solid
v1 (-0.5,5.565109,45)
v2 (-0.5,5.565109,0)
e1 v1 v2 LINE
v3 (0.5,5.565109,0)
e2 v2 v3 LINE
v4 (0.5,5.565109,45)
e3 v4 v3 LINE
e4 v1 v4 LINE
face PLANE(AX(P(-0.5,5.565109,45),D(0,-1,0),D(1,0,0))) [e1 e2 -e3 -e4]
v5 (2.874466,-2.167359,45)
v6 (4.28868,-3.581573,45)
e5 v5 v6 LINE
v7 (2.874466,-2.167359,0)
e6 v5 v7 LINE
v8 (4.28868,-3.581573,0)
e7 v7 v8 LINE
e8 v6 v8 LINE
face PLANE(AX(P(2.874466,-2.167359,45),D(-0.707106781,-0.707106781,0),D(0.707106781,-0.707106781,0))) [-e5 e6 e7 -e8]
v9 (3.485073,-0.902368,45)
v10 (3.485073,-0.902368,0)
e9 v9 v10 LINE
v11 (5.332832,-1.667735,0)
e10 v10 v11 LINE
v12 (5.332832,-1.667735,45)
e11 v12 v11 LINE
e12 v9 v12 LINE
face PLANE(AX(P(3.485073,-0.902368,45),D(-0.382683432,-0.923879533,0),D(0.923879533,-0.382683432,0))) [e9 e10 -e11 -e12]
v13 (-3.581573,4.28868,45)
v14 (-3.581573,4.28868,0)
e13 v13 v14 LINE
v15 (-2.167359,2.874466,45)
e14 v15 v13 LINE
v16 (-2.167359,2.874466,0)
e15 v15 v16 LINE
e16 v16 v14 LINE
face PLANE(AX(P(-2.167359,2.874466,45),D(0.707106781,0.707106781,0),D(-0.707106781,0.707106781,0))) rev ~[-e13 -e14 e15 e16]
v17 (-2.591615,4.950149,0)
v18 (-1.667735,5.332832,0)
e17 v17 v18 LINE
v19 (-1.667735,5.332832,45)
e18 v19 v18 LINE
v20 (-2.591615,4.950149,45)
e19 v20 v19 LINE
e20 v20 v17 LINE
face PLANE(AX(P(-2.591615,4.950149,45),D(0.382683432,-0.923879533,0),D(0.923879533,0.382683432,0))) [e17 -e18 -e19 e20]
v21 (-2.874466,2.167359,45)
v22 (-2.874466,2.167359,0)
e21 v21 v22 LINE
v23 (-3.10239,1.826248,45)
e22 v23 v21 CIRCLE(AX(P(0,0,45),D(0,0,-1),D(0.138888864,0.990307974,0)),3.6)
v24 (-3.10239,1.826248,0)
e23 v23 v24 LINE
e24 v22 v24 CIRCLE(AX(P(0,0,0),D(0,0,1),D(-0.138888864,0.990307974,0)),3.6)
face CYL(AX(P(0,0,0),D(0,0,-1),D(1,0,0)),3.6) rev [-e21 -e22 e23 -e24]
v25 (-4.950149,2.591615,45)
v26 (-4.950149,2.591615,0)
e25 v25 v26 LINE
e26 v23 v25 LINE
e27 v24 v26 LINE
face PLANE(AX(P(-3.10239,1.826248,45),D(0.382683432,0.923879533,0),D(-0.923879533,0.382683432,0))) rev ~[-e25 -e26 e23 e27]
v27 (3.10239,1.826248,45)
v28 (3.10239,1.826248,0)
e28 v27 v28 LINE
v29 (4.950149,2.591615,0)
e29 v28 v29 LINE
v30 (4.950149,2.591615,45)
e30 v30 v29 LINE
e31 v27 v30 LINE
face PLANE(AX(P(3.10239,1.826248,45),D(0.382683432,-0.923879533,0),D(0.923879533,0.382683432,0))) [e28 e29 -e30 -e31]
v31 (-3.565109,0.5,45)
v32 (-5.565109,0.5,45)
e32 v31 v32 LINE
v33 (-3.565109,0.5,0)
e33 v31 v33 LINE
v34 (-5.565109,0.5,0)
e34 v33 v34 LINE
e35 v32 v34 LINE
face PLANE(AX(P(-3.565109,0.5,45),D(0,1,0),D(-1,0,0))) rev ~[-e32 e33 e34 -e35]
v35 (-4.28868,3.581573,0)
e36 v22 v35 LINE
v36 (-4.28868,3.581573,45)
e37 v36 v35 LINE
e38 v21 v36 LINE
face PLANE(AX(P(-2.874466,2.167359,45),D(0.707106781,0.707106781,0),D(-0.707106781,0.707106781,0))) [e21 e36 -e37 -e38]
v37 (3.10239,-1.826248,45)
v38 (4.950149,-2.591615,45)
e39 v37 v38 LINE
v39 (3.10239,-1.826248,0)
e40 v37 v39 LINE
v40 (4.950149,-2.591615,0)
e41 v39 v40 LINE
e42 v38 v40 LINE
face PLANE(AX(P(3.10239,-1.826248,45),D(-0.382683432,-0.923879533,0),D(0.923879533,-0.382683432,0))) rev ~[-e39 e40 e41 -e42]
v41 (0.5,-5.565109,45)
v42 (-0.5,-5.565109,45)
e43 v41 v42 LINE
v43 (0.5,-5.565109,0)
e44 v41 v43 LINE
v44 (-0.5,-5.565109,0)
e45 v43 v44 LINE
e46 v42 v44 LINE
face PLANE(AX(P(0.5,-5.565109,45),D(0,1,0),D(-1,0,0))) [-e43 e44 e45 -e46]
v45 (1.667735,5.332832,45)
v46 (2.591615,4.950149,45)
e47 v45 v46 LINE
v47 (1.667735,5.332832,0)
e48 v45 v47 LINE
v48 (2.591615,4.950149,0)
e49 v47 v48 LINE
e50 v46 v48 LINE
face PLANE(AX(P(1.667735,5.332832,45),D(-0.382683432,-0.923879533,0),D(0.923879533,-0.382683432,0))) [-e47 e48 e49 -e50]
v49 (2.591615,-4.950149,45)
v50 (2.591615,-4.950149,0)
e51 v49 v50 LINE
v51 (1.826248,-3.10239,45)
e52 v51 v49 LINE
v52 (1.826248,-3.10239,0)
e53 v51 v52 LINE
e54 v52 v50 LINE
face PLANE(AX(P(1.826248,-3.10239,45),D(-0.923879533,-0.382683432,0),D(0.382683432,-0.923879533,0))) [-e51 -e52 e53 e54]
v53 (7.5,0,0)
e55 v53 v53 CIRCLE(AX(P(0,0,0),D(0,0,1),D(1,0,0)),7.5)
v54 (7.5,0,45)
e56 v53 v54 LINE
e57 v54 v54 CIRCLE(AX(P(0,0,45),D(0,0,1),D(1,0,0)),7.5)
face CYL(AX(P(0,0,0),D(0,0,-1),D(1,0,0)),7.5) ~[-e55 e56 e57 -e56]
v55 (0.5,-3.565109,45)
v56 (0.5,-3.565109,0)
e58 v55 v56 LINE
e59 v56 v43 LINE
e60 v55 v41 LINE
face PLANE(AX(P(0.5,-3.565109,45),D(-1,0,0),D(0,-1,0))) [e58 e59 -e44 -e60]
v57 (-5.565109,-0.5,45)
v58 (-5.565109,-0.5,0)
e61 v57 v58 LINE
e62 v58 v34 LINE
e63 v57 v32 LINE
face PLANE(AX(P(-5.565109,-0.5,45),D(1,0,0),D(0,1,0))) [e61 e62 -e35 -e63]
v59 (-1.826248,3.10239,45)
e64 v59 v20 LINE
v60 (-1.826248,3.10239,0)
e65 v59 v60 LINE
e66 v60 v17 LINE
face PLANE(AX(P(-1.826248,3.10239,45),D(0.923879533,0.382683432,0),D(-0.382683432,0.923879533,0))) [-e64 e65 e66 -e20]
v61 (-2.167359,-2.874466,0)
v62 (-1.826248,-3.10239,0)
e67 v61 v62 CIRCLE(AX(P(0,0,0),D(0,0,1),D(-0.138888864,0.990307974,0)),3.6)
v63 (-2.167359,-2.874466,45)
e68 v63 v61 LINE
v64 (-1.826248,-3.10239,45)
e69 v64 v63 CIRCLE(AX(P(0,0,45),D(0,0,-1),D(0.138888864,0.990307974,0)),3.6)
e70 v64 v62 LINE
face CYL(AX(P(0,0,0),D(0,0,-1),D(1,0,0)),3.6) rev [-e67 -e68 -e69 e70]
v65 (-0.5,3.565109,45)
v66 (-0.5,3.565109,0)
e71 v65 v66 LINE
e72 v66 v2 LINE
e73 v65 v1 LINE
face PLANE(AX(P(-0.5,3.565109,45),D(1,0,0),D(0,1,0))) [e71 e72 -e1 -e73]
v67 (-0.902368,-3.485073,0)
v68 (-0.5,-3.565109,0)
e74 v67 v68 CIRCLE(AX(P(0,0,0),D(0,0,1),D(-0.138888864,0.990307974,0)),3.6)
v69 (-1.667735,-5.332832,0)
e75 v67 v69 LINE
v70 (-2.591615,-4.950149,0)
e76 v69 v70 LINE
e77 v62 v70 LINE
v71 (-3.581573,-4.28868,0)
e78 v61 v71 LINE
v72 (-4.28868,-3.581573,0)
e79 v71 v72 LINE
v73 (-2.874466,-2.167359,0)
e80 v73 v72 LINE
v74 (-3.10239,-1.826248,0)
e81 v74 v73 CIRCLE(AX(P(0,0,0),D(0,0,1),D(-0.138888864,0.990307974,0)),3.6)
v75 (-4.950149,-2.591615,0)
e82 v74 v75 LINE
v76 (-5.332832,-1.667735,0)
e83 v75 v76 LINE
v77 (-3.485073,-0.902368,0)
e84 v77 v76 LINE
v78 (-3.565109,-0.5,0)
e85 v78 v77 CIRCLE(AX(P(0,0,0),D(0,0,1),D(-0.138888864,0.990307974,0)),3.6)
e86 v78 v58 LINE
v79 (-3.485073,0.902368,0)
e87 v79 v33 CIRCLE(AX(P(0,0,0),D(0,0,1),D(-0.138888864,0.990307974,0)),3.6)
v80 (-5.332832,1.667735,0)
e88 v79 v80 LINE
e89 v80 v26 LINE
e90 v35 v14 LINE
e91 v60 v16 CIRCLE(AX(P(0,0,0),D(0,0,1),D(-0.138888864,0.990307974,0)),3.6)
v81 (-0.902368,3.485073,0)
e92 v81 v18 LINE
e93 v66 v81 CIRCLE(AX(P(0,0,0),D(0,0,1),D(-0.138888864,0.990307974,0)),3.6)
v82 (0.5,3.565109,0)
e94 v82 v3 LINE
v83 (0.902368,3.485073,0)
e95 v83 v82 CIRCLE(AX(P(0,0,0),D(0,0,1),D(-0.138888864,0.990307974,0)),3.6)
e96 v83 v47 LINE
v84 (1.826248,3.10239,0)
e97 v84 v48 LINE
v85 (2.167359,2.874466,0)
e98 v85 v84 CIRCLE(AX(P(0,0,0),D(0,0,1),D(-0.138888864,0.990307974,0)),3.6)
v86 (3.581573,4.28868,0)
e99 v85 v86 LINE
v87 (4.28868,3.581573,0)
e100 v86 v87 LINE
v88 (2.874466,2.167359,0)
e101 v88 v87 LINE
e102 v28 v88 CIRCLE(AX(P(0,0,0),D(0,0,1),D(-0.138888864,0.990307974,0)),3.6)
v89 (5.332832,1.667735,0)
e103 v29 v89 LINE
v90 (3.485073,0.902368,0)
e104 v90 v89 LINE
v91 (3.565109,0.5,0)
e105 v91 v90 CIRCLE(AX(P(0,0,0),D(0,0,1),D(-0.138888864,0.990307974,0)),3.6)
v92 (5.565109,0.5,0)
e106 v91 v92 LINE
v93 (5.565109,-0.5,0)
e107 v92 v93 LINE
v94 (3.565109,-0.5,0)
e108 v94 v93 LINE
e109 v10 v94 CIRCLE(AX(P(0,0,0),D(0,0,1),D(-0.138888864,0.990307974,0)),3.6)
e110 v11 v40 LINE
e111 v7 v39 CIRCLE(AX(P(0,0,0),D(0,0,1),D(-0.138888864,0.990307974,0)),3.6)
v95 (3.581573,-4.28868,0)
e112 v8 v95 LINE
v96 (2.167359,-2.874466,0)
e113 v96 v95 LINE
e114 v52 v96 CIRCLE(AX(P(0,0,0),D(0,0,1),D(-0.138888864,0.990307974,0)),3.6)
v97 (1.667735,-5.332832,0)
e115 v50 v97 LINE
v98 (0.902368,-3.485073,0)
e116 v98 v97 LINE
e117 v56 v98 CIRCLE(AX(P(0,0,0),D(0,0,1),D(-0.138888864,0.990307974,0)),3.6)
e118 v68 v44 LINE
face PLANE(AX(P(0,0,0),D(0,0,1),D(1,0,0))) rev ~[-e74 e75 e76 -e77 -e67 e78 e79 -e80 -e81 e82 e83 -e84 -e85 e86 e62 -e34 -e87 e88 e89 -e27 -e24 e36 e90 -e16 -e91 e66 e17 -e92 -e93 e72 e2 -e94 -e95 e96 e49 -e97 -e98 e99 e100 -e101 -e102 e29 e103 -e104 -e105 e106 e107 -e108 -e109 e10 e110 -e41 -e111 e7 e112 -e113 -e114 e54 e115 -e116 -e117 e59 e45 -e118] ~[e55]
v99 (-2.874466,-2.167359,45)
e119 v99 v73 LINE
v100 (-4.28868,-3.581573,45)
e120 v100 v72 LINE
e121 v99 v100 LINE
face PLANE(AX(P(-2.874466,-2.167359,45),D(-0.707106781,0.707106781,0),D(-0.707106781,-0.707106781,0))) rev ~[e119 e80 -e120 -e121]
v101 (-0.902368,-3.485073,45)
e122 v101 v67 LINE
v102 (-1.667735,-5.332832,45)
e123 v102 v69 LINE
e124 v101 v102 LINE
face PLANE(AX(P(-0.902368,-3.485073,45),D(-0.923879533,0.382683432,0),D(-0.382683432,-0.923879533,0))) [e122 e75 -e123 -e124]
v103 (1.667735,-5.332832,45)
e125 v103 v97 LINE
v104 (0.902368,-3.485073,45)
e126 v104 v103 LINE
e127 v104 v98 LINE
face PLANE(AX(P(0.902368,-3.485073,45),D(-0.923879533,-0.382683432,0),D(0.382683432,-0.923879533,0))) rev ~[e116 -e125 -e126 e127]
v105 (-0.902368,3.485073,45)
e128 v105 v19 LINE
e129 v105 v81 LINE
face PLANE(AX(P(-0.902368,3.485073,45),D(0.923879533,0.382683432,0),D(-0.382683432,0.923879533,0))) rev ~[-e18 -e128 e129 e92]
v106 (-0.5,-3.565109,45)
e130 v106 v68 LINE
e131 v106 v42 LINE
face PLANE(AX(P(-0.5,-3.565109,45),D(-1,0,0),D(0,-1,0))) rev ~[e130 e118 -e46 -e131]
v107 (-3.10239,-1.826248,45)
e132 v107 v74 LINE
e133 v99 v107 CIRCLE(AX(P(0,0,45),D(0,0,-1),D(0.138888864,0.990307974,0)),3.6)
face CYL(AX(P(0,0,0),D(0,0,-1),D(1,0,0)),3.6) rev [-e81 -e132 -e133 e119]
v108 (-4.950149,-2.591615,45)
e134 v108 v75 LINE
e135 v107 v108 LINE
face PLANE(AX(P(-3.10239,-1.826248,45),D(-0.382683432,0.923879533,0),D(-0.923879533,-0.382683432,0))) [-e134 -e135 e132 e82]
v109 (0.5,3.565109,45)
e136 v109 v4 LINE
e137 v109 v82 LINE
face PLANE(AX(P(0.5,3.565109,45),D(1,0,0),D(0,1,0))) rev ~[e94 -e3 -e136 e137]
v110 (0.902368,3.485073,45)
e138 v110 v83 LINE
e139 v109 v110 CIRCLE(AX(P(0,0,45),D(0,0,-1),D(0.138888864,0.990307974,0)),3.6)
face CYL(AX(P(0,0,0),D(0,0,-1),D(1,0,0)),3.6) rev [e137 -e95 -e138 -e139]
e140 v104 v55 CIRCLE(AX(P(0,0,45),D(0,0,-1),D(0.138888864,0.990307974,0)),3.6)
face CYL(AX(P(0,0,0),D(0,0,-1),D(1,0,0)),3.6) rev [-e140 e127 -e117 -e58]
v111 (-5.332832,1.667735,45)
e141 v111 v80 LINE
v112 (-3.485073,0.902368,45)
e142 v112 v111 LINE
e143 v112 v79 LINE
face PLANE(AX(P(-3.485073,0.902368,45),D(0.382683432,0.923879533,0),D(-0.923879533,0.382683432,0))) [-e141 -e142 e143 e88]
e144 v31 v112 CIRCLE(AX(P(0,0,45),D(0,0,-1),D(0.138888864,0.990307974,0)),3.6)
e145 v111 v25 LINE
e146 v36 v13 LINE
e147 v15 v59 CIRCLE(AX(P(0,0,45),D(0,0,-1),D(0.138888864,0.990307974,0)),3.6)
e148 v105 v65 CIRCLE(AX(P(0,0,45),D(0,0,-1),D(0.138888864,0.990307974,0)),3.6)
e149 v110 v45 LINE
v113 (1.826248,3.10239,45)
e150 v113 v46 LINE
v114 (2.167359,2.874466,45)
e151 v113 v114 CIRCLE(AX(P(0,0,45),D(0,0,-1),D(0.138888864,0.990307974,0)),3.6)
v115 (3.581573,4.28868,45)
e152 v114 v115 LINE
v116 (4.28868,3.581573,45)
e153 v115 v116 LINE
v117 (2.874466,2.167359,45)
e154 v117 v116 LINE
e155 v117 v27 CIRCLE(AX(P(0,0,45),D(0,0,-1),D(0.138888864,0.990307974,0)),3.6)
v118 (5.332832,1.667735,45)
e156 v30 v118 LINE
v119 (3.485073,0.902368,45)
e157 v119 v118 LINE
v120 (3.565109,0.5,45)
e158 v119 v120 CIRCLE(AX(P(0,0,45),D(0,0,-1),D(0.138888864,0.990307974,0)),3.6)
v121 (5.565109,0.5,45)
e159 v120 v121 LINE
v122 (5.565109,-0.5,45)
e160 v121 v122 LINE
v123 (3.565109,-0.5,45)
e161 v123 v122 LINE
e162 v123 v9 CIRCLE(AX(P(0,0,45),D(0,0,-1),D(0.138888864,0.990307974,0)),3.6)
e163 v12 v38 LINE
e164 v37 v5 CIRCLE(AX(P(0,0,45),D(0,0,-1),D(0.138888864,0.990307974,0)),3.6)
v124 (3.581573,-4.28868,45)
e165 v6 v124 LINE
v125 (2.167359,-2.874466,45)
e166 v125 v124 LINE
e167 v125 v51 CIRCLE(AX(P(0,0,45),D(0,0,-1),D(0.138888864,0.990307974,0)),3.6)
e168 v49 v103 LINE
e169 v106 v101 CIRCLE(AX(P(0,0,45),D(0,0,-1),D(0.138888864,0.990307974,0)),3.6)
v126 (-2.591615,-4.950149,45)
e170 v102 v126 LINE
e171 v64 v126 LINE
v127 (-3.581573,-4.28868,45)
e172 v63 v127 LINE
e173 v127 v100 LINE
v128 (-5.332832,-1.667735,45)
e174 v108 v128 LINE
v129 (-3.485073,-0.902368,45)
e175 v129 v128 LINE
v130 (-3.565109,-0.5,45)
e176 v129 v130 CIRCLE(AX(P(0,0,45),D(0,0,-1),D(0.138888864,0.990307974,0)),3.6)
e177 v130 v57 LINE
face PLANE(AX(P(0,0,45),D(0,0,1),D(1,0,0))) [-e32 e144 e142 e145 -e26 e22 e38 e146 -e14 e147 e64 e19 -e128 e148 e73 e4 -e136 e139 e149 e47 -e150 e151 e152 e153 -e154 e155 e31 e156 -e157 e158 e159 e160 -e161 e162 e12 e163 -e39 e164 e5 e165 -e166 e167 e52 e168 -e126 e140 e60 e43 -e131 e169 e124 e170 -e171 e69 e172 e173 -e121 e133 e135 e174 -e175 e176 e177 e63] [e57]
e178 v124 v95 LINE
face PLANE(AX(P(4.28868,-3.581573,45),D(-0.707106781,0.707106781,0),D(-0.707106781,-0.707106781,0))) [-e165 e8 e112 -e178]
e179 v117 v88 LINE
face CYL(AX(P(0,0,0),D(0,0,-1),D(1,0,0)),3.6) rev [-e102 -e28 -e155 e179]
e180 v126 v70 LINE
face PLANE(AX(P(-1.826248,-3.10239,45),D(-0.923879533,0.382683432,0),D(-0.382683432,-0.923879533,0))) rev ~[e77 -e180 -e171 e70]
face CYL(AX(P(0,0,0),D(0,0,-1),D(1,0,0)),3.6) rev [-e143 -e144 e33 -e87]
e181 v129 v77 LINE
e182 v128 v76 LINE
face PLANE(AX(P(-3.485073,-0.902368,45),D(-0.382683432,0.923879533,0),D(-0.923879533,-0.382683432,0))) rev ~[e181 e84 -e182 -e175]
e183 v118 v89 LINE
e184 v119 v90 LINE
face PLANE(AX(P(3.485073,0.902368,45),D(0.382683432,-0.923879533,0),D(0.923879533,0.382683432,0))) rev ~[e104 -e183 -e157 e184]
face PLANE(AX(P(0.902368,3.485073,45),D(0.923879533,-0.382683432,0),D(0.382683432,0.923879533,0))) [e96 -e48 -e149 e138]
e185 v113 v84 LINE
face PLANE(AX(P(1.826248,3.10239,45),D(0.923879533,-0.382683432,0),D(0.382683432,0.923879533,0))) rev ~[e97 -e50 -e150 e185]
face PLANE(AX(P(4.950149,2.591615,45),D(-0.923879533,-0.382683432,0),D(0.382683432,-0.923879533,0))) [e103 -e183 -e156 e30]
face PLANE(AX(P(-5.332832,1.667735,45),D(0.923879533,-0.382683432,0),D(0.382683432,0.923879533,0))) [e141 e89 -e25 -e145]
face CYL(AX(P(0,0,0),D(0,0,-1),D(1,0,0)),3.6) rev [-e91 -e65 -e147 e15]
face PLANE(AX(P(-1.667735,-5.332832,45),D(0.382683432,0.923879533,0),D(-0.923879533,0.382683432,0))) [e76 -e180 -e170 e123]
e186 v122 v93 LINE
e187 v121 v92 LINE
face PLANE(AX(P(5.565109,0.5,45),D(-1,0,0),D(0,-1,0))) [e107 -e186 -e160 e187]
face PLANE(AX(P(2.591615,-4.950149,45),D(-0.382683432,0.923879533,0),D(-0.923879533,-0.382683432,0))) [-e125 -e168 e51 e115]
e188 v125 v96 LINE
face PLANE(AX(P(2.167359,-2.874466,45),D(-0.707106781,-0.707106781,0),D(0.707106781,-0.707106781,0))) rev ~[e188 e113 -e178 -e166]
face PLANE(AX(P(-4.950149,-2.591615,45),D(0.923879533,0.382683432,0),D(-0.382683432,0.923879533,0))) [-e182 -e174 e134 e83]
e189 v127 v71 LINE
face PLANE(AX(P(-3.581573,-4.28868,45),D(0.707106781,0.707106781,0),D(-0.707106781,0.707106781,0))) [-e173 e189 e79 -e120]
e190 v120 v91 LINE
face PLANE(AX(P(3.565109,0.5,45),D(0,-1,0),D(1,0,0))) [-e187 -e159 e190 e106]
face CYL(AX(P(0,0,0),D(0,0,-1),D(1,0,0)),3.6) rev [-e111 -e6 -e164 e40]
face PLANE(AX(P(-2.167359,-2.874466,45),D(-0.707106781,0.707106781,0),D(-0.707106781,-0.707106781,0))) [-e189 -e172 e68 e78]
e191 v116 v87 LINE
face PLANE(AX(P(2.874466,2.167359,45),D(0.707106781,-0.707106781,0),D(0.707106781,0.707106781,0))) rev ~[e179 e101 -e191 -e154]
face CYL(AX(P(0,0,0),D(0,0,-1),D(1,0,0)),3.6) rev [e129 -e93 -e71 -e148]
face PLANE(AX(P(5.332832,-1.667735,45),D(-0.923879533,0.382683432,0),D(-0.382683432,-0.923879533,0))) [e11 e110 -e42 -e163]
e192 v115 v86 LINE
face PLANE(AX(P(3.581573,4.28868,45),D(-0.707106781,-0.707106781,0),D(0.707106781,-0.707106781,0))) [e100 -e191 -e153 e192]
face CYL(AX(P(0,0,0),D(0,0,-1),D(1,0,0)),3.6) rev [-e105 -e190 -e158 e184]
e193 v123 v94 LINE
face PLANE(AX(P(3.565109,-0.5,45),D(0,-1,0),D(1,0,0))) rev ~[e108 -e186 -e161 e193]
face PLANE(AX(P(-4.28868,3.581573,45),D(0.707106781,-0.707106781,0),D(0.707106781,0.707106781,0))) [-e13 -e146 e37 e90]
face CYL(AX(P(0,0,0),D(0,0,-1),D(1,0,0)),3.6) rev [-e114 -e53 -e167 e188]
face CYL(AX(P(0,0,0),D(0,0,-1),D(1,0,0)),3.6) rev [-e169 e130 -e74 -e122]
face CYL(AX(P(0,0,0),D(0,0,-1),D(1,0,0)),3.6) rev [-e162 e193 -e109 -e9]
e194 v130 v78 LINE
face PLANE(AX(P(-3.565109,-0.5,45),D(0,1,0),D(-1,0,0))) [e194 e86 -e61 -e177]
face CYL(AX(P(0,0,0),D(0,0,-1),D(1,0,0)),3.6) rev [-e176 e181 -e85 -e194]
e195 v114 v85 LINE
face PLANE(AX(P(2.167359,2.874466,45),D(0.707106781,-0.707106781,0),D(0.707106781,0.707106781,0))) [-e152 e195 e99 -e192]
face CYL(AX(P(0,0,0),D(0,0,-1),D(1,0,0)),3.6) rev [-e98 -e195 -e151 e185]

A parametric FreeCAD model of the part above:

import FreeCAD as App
import Part
import Sketcher
from FreeCAD import Vector

doc = App.newDocument("Part")
body = doc.addObject("PartDesign::Body", "Body")

sketch1 = body.newObject("Sketcher::SketchObject", "Sketch")
sketch1.AttachmentSupport = (doc.getObject("XY_Plane"), [""])
sketch1.MapMode = "FlatFace"
sketch1.addGeometry(Part.Circle(Vector(0, 0, 0), Vector(0, 0, 1), 7.5), False)
sketch1.addGeometry(Part.Circle(Vector(0, 0, 0), Vector(0, 0, 1), 3.6), False)
sketch1.addConstraint(Sketcher.Constraint("Coincident", 0, 3, -1, 1))
sketch1.addConstraint(Sketcher.Constraint("Coincident", 1, 3, -1, 1))
sketch1.addConstraint(Sketcher.Constraint("Diameter", 0, 15.0))
sketch1.addConstraint(Sketcher.Constraint("Diameter", 1, 7.2))
pad1 = body.newObject("PartDesign::Pad", "Pad")
pad1.Profile = sketch1
pad1.Length = 45

sketch2 = body.newObject("Sketcher::SketchObject", "Sketch001")
sketch2.AttachmentSupport = (doc.getObject("XY_Plane"), [""])
sketch2.MapMode = "FlatFace"
sketch2.AttachmentOffset = App.Placement(Vector(0, 0, 45), App.Rotation())
sketch2.addGeometry(Part.LineSegment(Vector(-0.5, 5.6, 0), Vector(-0.5, 3.6, 0)), False)
sketch2.addGeometry(Part.LineSegment(Vector(-0.5, 3.6, 0), Vector(0.5, 3.6, 0)), False)
sketch2.addGeometry(Part.LineSegment(Vector(0.5, 3.6, 0), Vector(0.5, 5.6, 0)), False)
sketch2.addGeometry(Part.LineSegment(Vector(0.5, 5.6, 0), Vector(-0.5, 5.6, 0)), False)
sketch2.addConstraint(Sketcher.Constraint("Coincident", 0, 2, 1, 1))
sketch2.addConstraint(Sketcher.Constraint("Coincident", 1, 2, 2, 1))
sketch2.addConstraint(Sketcher.Constraint("Coincident", 2, 2, 3, 1))
sketch2.addConstraint(Sketcher.Constraint("Coincident", 3, 2, 0, 1))
sketch2.addConstraint(Sketcher.Constraint("Vertical", 0))
sketch2.addConstraint(Sketcher.Constraint("Horizontal", 1))
sketch2.addConstraint(Sketcher.Constraint("Vertical", 2))
sketch2.addConstraint(Sketcher.Constraint("Horizontal", 3))
sketch2.addConstraint(Sketcher.Constraint("DistanceX", 1, 1, 1, 2, 1.0))
sketch2.addConstraint(Sketcher.Constraint("DistanceY", 0, 2, 0, 1, 2.0))
sketch2.addConstraint(Sketcher.Constraint("DistanceX", 0, 2, -1, 1, 0.5))
sketch2.addConstraint(Sketcher.Constraint("DistanceY", -1, 1, 0, 2, 3.565109))
pocket1 = body.newObject("PartDesign::Pocket", "Pocket")
pocket1.Profile = sketch2
pocket1.Length = 45
doc.recompute()

polarpattern = body.newObject("PartDesign::PolarPattern", "PolarPattern")
polarpattern.Originals = [pocket1]
polarpattern.Axis = (doc.getObject("Z_Axis"), [""])
polarpattern.Angle = 360
polarpattern.Occurrences = 16
body.Tip = polarpattern

doc.recompute()
